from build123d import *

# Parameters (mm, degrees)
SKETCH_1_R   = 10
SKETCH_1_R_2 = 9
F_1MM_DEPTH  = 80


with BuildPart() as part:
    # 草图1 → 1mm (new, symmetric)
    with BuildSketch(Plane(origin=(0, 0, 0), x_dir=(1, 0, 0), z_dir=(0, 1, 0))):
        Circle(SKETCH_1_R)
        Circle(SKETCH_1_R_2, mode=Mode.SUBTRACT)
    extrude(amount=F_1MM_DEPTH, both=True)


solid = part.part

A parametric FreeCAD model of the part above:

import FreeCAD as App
import Part
import Sketcher

V = App.Vector
Q = App.Units.Quantity

doc = App.newDocument("Part")
body = doc.addObject("PartDesign::Body", "Body")

# Sketch on XZ plane
sketch1 = body.newObject("Sketcher::SketchObject", "Sketch")
sketch1.AttachmentSupport = (doc.getObject("XZ_Plane"), [""])
sketch1.MapMode = "FlatFace"
sketch1.addGeometry([
    Part.Circle(V(0, 0, 0), V(0, 0, 1), 10),
    Part.Circle(V(0, 0, 0), V(0, 0, 1), 9),
], False)
sketch1.addConstraint([
    Sketcher.Constraint("Coincident", 0, 3, -1, 1),
    Sketcher.Constraint("Coincident", 1, 3, -1, 1),
    Sketcher.Constraint("Diameter", 0, Q("20 mm")),
    Sketcher.Constraint("Diameter", 1, Q("18 mm")),
])
pad1 = body.newObject("PartDesign::Pad", "Pad")
pad1.Profile = sketch1
pad1.Length = 160
pad1.Midplane = True

doc.recompute()
